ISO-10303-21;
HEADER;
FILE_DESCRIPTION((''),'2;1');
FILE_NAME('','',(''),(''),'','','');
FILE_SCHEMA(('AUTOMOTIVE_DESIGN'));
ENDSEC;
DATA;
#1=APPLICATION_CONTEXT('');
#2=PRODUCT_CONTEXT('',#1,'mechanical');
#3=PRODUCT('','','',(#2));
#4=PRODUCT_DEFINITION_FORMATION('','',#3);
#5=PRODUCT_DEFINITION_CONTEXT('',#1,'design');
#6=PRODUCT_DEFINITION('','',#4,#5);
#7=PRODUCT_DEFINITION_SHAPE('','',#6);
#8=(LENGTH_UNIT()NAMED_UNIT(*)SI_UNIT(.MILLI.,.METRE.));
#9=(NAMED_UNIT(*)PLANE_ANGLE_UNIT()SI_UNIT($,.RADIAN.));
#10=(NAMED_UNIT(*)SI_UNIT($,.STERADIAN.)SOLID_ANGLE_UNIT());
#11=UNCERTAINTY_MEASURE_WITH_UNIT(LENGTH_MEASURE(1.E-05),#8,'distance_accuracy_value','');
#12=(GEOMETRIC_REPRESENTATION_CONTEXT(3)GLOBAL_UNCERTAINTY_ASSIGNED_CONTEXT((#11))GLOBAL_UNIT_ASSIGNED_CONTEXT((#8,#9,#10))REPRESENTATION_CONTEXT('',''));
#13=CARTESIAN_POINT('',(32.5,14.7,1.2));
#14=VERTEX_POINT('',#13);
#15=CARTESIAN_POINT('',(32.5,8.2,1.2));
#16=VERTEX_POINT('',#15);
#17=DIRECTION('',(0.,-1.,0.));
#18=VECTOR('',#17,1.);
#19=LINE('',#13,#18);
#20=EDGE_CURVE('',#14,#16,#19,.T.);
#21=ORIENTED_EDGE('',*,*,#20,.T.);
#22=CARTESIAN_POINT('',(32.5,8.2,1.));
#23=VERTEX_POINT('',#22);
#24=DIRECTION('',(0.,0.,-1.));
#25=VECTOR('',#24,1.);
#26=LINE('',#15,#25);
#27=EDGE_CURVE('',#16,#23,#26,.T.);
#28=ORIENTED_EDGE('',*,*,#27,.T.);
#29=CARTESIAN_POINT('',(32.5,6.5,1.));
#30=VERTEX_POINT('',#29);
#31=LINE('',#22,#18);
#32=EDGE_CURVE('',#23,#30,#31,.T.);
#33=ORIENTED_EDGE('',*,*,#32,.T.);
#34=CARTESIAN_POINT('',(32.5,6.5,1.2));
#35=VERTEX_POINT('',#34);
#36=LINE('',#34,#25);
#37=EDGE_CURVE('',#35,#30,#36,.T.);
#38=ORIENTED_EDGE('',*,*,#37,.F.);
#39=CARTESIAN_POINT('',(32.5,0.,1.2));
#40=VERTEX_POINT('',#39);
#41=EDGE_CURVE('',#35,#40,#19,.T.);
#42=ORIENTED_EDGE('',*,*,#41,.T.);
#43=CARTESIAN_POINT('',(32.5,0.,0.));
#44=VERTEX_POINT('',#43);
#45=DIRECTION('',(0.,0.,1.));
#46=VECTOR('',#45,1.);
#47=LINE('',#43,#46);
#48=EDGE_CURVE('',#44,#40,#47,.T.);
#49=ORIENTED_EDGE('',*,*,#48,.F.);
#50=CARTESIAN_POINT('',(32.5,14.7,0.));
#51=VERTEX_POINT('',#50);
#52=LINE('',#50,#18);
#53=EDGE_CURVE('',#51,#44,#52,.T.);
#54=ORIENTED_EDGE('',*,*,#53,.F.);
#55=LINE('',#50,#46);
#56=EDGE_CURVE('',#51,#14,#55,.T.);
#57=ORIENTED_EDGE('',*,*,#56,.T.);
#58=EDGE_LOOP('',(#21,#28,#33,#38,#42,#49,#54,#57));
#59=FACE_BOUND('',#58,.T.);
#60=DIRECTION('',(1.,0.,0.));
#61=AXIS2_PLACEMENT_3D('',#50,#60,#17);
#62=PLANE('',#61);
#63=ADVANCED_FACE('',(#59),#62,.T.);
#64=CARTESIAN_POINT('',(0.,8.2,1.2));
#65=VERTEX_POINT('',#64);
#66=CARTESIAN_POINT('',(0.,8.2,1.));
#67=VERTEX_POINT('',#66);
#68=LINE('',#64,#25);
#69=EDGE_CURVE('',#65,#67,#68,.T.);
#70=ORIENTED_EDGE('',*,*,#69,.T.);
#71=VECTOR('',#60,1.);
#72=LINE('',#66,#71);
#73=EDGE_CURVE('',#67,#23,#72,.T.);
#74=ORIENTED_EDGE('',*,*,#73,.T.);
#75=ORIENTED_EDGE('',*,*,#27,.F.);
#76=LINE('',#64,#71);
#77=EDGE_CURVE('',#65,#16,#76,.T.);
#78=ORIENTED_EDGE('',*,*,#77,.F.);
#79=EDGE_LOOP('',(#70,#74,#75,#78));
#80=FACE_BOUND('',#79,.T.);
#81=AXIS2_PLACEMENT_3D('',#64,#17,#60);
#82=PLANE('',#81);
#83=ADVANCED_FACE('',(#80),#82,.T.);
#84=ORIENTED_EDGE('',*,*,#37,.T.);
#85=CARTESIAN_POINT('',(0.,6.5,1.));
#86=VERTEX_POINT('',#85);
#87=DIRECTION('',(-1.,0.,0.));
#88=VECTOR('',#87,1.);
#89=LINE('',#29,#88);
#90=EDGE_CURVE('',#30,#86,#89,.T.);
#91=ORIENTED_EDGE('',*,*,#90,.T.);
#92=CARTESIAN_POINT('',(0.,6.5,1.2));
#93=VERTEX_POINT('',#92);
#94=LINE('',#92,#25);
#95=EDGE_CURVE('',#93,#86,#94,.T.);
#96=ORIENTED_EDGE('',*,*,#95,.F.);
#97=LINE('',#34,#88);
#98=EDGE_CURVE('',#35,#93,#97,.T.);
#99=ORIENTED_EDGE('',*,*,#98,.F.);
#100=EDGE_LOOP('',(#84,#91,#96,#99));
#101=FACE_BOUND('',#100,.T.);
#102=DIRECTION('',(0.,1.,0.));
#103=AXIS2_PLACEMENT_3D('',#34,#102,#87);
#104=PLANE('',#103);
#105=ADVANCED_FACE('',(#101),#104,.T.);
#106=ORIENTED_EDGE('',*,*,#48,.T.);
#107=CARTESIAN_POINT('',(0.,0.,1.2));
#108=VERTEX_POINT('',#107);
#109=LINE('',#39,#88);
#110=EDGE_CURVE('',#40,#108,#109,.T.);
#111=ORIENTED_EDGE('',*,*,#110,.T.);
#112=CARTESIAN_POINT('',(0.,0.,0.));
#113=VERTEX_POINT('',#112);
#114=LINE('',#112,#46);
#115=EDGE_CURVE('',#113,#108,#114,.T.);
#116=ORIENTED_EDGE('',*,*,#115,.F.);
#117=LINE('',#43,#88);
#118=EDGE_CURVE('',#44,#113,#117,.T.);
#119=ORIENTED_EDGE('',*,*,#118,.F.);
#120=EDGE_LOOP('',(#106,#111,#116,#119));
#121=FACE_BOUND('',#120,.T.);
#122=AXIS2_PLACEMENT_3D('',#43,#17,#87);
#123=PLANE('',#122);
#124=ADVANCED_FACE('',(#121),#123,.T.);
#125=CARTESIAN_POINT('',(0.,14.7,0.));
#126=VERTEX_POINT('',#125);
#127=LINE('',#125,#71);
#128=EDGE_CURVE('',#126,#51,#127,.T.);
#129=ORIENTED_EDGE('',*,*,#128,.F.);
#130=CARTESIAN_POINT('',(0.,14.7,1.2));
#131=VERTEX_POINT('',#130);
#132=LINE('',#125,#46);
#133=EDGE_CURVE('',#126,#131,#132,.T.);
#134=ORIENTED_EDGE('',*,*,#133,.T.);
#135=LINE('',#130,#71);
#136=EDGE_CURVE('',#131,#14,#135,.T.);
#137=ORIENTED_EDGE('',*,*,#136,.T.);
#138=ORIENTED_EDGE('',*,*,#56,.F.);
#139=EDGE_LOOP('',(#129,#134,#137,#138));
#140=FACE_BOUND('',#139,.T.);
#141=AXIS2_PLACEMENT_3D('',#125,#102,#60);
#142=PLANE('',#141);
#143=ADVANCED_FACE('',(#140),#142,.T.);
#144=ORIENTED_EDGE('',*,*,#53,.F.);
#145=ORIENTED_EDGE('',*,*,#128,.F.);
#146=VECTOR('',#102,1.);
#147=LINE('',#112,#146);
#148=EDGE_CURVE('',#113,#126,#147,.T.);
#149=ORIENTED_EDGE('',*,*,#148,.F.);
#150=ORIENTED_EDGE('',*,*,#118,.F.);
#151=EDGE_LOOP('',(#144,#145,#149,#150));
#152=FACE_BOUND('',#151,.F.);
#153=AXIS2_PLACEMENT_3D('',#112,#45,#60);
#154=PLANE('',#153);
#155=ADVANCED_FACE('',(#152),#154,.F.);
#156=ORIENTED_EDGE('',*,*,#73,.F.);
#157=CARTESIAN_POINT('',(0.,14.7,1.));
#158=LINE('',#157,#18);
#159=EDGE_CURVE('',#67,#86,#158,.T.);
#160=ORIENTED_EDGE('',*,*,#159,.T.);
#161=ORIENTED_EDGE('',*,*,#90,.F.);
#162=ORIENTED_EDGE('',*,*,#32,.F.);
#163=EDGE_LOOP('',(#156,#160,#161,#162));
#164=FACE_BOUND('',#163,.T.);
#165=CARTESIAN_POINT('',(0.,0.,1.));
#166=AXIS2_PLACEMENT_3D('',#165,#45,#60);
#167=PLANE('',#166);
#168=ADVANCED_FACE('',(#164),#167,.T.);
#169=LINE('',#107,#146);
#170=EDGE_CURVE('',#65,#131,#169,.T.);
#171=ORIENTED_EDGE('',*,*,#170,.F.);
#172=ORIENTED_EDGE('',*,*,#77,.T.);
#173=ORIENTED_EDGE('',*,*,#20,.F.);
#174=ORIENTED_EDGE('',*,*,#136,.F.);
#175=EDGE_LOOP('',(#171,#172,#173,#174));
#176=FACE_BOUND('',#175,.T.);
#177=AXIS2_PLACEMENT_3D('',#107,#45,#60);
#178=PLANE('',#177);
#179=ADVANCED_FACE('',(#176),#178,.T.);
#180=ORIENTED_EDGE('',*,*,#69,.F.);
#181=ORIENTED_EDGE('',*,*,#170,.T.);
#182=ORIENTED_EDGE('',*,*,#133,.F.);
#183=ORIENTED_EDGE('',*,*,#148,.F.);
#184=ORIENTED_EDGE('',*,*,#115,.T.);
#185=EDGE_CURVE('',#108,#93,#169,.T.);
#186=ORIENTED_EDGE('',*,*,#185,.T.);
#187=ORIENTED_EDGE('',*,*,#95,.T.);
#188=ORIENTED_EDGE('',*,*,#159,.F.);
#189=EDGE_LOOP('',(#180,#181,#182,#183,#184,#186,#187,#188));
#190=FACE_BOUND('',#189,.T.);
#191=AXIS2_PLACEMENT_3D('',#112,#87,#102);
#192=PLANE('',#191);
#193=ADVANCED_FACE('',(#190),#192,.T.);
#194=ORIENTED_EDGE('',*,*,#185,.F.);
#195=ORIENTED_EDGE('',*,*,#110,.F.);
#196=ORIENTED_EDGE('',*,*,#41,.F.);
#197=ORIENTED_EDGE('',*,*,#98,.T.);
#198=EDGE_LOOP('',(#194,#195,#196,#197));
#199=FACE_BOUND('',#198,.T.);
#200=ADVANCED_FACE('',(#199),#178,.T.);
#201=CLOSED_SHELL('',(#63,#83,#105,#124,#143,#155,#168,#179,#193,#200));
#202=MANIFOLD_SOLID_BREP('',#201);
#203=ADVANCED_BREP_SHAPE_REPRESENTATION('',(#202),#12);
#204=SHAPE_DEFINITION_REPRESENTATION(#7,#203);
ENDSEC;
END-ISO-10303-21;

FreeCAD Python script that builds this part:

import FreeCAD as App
import Part
import Sketcher

V = App.Vector
Q = App.Units.Quantity

doc = App.newDocument("Part")
body = doc.addObject("PartDesign::Body", "Body")

sketch1 = body.newObject("Sketcher::SketchObject", "Sketch")
sketch1.AttachmentSupport = (doc.getObject("XY_Plane"), [""])
sketch1.MapMode = "FlatFace"
sketch1.addGeometry(Part.LineSegment(V(0, 15, 0), V(0, 0, 0)), False)
sketch1.addGeometry(Part.LineSegment(V(0, 0, 0), V(32, 0, 0)), False)
sketch1.addGeometry(Part.LineSegment(V(32, 0, 0), V(32, 15, 0)), False)
sketch1.addGeometry(Part.LineSegment(V(32, 15, 0), V(0, 15, 0)), False)
sketch1.addConstraint(Sketcher.Constraint("Coincident", 0, 2, 1, 1))
sketch1.addConstraint(Sketcher.Constraint("Coincident", 1, 2, 2, 1))
sketch1.addConstraint(Sketcher.Constraint("Coincident", 2, 2, 3, 1))
sketch1.addConstraint(Sketcher.Constraint("Coincident", 3, 2, 0, 1))
sketch1.addConstraint(Sketcher.Constraint("Vertical", 0))
sketch1.addConstraint(Sketcher.Constraint("Horizontal", 1))
sketch1.addConstraint(Sketcher.Constraint("Vertical", 2))
sketch1.addConstraint(Sketcher.Constraint("Horizontal", 3))
sketch1.addConstraint(Sketcher.Constraint("Coincident", 0, 2, -1, 1))
sketch1.addConstraint(Sketcher.Constraint("DistanceX", 1, 1, 1, 2, Q("32.5 mm")))
sketch1.addConstraint(Sketcher.Constraint("DistanceY", 0, 2, 0, 1, Q("14.7 mm")))
pad1 = body.newObject("PartDesign::Pad", "Pad")
pad1.Profile = sketch1
pad1.Length = 1.2

sketch2 = body.newObject("Sketcher::SketchObject", "Sketch001")
sketch2.AttachmentSupport = (doc.getObject("XY_Plane"), [""])
sketch2.MapMode = "FlatFace"
sketch2.AttachmentOffset = App.Placement(V(0, 0, 1.2), App.Rotation())
sketch2.addGeometry(Part.LineSegment(V(32.5, 8.2, 0), V(0, 8.2, 0)), False)
sketch2.addGeometry(Part.LineSegment(V(0, 8.2, 0), V(0, 6.5, 0)), False)
sketch2.addGeometry(Part.LineSegment(V(0, 6.5, 0), V(32.5, 6.5, 0)), False)
sketch2.addGeometry(Part.LineSegment(V(32.5, 6.5, 0), V(32.5, 8.2, 0)), False)
sketch2.addConstraint(Sketcher.Constraint("Coincident", 0, 2, 1, 1))
sketch2.addConstraint(Sketcher.Constraint("Coincident", 1, 2, 2, 1))
sketch2.addConstraint(Sketcher.Constraint("Coincident", 2, 2, 3, 1))
sketch2.addConstraint(Sketcher.Constraint("Coincident", 3, 2, 0, 1))
sketch2.addConstraint(Sketcher.Constraint("Horizontal", 0))
sketch2.addConstraint(Sketcher.Constraint("Vertical", 1))
sketch2.addConstraint(Sketcher.Constraint("Horizontal", 2))
sketch2.addConstraint(Sketcher.Constraint("Vertical", 3))
sketch2.addConstraint(Sketcher.Constraint("PointOnObject", 0, 2, -2))
sketch2.addConstraint(Sketcher.Constraint("DistanceX", 0, 2, 0, 1, Q("32.5 mm")))
sketch2.addConstraint(Sketcher.Constraint("DistanceY", 1, 2, 1, 1, Q("1.7 mm")))
sketch2.addConstraint(Sketcher.Constraint("DistanceY", -1, 1, 1, 2, Q("6.5 mm")))
pocket1 = body.newObject("PartDesign::Pocket", "Pocket")
pocket1.Profile = sketch2
pocket1.Length = 0.2

doc.recompute()
